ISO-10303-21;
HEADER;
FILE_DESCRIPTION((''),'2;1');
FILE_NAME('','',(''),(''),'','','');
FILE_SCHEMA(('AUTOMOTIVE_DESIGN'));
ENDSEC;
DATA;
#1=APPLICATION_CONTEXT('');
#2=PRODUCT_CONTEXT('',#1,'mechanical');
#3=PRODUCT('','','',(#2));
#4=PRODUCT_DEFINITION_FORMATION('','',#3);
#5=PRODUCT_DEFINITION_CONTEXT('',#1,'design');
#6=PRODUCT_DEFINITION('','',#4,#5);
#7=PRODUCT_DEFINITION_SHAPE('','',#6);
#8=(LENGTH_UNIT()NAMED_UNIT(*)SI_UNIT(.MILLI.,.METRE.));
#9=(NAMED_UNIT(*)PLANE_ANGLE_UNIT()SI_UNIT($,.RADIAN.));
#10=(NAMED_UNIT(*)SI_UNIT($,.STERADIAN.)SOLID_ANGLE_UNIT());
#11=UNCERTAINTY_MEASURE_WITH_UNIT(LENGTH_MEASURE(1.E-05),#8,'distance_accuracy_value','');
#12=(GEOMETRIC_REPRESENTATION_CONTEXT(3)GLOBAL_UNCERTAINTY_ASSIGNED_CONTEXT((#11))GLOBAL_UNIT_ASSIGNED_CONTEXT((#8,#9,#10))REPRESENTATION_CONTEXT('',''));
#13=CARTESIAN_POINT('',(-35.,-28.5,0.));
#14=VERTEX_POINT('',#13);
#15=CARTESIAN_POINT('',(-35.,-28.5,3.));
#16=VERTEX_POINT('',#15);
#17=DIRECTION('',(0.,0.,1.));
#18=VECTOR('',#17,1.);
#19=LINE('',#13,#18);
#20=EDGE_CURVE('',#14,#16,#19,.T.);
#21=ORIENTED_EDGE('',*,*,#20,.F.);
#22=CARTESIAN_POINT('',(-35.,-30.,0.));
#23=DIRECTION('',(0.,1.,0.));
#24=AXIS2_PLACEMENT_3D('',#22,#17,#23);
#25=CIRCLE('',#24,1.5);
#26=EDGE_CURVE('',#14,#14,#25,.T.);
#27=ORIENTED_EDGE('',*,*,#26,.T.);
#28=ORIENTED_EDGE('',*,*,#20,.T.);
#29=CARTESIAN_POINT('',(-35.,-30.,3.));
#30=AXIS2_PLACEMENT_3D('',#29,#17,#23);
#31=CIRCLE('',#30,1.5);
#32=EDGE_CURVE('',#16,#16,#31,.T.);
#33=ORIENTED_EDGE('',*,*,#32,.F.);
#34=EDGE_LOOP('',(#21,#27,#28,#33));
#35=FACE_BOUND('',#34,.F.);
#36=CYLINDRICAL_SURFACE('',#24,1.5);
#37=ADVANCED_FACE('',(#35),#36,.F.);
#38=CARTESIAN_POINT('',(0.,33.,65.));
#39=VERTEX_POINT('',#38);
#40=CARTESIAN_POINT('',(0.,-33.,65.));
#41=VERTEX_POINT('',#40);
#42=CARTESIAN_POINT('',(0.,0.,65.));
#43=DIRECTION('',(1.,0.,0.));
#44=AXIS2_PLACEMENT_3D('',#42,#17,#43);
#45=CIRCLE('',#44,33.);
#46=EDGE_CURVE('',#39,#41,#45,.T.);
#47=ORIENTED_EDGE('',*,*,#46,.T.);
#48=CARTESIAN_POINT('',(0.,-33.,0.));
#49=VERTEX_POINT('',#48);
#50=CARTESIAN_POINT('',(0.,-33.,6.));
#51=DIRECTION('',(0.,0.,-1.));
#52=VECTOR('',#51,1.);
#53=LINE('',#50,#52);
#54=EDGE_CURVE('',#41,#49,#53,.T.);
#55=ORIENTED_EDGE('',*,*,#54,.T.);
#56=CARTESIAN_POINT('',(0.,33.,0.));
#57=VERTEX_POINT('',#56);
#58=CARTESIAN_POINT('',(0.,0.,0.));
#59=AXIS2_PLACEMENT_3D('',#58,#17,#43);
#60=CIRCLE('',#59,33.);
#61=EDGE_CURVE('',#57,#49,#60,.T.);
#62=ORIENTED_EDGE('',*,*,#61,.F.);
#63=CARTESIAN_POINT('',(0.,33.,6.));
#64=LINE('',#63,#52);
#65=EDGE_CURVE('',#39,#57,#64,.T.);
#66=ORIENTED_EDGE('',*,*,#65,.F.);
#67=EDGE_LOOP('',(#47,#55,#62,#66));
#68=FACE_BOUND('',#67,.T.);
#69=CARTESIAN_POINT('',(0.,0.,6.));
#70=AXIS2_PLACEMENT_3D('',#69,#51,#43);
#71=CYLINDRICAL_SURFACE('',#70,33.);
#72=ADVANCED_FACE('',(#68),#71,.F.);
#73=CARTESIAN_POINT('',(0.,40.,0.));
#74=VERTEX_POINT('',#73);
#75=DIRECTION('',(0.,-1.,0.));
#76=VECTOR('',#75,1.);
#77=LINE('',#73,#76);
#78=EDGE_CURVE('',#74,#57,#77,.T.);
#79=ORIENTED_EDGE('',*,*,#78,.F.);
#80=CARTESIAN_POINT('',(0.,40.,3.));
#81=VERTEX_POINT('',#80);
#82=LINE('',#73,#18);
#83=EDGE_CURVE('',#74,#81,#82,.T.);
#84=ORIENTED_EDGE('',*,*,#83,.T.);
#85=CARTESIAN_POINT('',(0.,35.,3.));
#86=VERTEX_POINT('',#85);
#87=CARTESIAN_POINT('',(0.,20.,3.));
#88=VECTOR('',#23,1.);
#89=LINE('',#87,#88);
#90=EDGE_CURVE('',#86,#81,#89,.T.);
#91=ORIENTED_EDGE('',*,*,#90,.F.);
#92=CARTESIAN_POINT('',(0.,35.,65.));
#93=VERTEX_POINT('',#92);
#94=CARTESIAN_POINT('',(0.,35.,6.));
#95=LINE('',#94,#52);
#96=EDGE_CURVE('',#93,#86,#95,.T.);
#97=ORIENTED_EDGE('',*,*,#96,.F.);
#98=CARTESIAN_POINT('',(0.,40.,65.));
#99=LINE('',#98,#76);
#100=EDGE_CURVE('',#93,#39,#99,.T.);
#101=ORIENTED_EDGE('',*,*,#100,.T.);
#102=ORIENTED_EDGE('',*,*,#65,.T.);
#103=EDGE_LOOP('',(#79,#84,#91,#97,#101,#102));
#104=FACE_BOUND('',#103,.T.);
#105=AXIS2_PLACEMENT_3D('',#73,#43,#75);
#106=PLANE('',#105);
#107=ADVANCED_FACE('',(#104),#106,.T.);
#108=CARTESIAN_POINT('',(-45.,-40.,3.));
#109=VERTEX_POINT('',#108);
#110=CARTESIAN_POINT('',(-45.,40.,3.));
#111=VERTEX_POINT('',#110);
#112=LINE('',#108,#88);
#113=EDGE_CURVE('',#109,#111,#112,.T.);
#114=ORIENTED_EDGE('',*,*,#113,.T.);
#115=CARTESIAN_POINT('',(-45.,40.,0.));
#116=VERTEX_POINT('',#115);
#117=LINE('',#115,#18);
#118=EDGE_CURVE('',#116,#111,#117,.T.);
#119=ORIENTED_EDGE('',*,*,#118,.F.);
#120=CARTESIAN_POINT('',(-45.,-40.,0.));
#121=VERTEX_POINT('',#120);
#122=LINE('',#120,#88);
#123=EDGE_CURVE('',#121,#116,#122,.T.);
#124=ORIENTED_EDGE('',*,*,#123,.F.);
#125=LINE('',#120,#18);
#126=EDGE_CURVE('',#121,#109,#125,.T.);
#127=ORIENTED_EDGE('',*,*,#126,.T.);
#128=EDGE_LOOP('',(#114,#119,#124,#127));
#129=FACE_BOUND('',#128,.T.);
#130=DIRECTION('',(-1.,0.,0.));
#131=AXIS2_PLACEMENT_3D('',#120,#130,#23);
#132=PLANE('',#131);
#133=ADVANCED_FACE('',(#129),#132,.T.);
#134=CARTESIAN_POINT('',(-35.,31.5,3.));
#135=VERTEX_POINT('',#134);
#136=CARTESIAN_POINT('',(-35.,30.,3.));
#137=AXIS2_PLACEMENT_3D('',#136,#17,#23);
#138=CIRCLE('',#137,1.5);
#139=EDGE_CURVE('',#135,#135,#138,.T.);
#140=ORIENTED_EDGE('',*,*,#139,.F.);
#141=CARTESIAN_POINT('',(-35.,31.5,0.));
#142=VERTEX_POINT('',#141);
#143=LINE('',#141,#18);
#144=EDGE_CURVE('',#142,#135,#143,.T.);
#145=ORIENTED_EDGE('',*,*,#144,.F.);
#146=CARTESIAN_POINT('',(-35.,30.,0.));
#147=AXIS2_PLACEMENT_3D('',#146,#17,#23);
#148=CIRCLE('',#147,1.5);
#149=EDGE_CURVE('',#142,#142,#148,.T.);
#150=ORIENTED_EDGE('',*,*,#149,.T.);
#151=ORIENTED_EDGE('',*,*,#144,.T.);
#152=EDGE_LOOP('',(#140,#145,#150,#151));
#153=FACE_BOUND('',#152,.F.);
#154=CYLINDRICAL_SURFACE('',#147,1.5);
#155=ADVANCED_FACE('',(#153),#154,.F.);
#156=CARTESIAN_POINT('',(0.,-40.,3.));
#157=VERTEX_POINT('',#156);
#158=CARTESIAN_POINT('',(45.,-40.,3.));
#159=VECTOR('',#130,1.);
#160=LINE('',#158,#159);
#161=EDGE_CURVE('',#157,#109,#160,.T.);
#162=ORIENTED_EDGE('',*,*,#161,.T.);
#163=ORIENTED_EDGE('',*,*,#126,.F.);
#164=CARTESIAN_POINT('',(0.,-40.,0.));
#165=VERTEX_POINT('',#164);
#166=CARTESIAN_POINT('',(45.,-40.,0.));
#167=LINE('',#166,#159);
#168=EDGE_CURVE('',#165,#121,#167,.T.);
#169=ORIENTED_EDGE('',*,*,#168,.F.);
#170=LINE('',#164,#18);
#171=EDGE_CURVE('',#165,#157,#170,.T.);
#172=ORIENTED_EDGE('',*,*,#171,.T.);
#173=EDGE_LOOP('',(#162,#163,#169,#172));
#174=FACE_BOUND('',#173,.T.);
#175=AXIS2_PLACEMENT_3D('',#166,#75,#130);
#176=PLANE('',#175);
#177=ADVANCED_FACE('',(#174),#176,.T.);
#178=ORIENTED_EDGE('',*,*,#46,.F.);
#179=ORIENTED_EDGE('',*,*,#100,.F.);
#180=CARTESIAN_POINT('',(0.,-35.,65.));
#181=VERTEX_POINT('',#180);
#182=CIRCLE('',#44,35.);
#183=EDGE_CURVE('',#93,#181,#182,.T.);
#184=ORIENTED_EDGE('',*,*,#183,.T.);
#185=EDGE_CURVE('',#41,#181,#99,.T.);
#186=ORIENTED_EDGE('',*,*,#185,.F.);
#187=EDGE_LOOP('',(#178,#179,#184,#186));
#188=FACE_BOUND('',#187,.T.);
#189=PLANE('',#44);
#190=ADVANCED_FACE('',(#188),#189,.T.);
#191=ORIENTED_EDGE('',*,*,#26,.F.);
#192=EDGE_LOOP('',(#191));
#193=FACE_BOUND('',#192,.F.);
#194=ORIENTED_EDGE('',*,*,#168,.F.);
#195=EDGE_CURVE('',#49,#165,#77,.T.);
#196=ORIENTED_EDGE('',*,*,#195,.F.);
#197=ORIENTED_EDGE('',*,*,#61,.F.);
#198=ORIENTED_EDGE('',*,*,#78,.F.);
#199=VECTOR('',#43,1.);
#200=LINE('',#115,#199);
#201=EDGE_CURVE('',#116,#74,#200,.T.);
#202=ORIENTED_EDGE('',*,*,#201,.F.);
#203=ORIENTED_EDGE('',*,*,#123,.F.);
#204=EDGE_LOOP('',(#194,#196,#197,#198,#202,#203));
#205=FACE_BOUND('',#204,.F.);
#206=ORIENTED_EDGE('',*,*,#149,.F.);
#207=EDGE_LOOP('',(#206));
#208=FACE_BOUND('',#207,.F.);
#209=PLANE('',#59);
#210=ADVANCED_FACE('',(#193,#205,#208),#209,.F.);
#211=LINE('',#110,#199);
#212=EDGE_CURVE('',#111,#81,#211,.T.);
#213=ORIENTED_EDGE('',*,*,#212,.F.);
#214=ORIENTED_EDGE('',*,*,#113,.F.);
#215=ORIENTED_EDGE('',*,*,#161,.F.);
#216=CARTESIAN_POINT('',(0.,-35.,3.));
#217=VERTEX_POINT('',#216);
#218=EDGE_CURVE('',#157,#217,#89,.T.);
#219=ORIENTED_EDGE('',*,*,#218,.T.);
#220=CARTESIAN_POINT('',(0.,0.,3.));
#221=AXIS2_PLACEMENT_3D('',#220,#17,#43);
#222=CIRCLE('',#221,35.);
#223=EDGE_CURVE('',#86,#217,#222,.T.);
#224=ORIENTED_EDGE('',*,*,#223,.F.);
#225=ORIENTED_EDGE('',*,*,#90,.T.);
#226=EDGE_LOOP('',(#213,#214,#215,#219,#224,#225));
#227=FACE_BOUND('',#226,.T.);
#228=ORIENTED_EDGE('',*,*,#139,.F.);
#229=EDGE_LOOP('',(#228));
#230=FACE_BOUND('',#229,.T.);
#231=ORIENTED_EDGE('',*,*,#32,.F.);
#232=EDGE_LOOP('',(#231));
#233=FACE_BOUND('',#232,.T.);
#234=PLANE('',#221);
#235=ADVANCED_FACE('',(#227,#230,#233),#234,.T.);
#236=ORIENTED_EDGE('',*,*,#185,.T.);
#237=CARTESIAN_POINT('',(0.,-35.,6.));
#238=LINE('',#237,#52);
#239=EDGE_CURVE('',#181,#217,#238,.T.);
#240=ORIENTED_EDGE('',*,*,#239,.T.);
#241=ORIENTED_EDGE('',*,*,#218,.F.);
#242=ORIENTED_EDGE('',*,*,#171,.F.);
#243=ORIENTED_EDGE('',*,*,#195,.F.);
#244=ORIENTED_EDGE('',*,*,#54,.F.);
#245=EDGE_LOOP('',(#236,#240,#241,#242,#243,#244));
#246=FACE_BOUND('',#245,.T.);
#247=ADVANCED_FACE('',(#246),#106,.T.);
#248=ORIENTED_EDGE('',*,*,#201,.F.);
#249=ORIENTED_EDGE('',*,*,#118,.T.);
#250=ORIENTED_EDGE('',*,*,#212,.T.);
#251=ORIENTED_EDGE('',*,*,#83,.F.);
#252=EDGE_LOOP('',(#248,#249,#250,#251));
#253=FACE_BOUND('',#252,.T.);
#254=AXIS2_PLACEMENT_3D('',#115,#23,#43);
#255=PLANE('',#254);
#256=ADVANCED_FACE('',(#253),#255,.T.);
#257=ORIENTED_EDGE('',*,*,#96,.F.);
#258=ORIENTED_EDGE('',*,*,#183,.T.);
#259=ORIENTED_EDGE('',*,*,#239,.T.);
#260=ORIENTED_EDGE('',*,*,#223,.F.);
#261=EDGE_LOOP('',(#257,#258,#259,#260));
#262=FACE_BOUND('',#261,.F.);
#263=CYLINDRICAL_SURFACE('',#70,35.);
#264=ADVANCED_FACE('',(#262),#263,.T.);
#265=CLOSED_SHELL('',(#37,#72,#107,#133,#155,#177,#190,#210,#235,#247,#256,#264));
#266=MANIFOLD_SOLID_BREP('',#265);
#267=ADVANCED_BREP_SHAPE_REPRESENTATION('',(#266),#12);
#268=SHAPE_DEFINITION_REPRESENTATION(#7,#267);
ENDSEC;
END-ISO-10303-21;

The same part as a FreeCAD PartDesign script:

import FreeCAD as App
import Part
import Sketcher
from FreeCAD import Vector
Q = App.Units.Quantity

doc = App.newDocument("Part")
body = doc.addObject("PartDesign::Body", "Body")

# Sketch on XY plane
sketch1 = doc.addObject("Sketcher::SketchObject", "Sketch")
body.addObject(sketch1)
sketch1.AttachmentSupport = (doc.XY_Plane, [""])
sketch1.MapMode = "FlatFace"
sketch1.addGeometry([
    Part.LineSegment(Vector(45, 40, 0), Vector(-45, 40, 0)),  # 0
    Part.LineSegment(Vector(-45, 40, 0), Vector(-45, -40, 0)),  # 1
    Part.LineSegment(Vector(-45, -40, 0), Vector(45, -40, 0)),  # 2
    Part.LineSegment(Vector(45, -40, 0), Vector(45, 40, 0)),  # 3
    Part.Circle(Vector(0, 0, 0), Vector(0, 0, 1), 35),  # 4
], False)
sketch1.addConstraint([
    Sketcher.Constraint("Coincident", 0, 2, 1, 1),
    Sketcher.Constraint("Coincident", 1, 2, 2, 1),
    Sketcher.Constraint("Coincident", 2, 2, 3, 1),
    Sketcher.Constraint("Coincident", 3, 2, 0, 1),
    Sketcher.Constraint("Horizontal", 0),
    Sketcher.Constraint("Vertical", 1),
    Sketcher.Constraint("Horizontal", 2),
    Sketcher.Constraint("Vertical", 3),
    Sketcher.Constraint("Coincident", 4, 3, -1, 1),
    Sketcher.Constraint("Symmetric", 0, 2, 2, 2, -1, 1),
    Sketcher.Constraint("Diameter", 4, Q("70 mm")),
    Sketcher.Constraint("DistanceX", 0, 2, 0, 1, Q("90 mm")),
    Sketcher.Constraint("DistanceY", 1, 2, 1, 1, Q("80 mm")),
])
pad1 = doc.addObject("PartDesign::Pad", "Pad")
body.addObject(pad1)
pad1.Profile = sketch1
pad1.Length = 3

# Sketch on XY plane
sketch2 = doc.addObject("Sketcher::SketchObject", "Sketch001")
body.addObject(sketch2)
sketch2.AttachmentSupport = (doc.XY_Plane, [""])
sketch2.MapMode = "FlatFace"
sketch2.AttachmentOffset = App.Placement(Vector(0, 0, 3), App.Rotation())
sketch2.addGeometry([
    Part.Circle(Vector(0, 0, 0), Vector(0, 0, 1), 35),
    Part.Circle(Vector(0, 0, 0), Vector(0, 0, 1), 33),
], False)
sketch2.addConstraint([
    Sketcher.Constraint("Coincident", 0, 3, -1, 1),
    Sketcher.Constraint("Coincident", 1, 3, -1, 1),
    Sketcher.Constraint("Diameter", 1, Q("66 mm")),
    Sketcher.Constraint("Diameter", 0, Q("70 mm")),
])
pad2 = doc.addObject("PartDesign::Pad", "Pad001")
body.addObject(pad2)
pad2.Profile = sketch2
pad2.Type = "TwoLengths"
pad2.Length = 3
pad2.Length2 = 3

# Sketch on XY plane
sketch3 = doc.addObject("Sketcher::SketchObject", "Sketch002")
body.addObject(sketch3)
sketch3.AttachmentSupport = (doc.XY_Plane, [""])
sketch3.MapMode = "FlatFace"
sketch3.AttachmentOffset = App.Placement(Vector(0, 0, 6), App.Rotation())
sketch3.addGeometry([
    Part.Circle(Vector(0, 0, 0), Vector(0, 0, 1), 35),
    Part.Circle(Vector(0, 0, 0), Vector(0, 0, 1), 33),
], False)
sketch3.addConstraint([
    Sketcher.Constraint("Coincident", 0, 3, -1, 1),
    Sketcher.Constraint("Coincident", 1, 3, -1, 1),
    Sketcher.Constraint("Diameter", 0, Q("70 mm")),
    Sketcher.Constraint("Diameter", 1, Q("66 mm")),
])
pad3 = doc.addObject("PartDesign::Pad", "Pad002")
body.addObject(pad3)
pad3.Profile = sketch3
pad3.Length = 59

# Sketch on XY plane
sketch4 = doc.addObject("Sketcher::SketchObject", "Sketch003")
body.addObject(sketch4)
sketch4.AttachmentSupport = (doc.XY_Plane, [""])
sketch4.MapMode = "FlatFace"
sketch4.addGeometry([
    Part.Circle(Vector(35, 30, 0), Vector(0, 0, 1), 1.5),
    Part.Circle(Vector(-35, 30, 0), Vector(0, 0, 1), 1.5),
    Part.Circle(Vector(-35, -30, 0), Vector(0, 0, 1), 1.5),
    Part.Circle(Vector(35, -30, 0), Vector(0, 0, 1), 1.5),
], False)
sketch4.addConstraint([
    Sketcher.Constraint("Equal", 0, 1),
    Sketcher.Constraint("Equal", 1, 2),
    Sketcher.Constraint("Equal", 2, 3),
    Sketcher.Constraint("Symmetric", 0, 3, 2, 3, -1, 1),
    Sketcher.Constraint("Symmetric", 1, 3, 3, 3, -1, 1),
    Sketcher.Constraint("Symmetric", 0, 3, 1, 3, -2),
    Sketcher.Constraint("Diameter", 0, Q("3 mm")),
    Sketcher.Constraint("DistanceX", -1, 1, 0, 3, Q("35 mm")),
    Sketcher.Constraint("DistanceY", -1, 1, 0, 3, Q("30 mm")),
])
doc.recompute()
hole = doc.addObject("PartDesign::Hole", "Hole")
body.addObject(hole)
hole.Profile = sketch4
hole.ThreadType = "None"
hole.Diameter = 3
hole.DepthType = "Dimension"
hole.Depth = 8
hole.DrillPoint = "Angled"
hole.DrillPointAngle = 118
hole.Reversed = True

# Sketch on XY plane
sketch5 = doc.addObject("Sketcher::SketchObject", "Sketch004")
body.addObject(sketch5)
sketch5.AttachmentSupport = (doc.XY_Plane, [""])
sketch5.MapMode = "FlatFace"
sketch5.addGeometry([
    Part.LineSegment(Vector(45, 40, 0), Vector(45, -40, 0)),  # 0
    Part.LineSegment(Vector(45, -40, 0), Vector(0, -40, 0)),  # 1
    Part.LineSegment(Vector(0, -40, 0), Vector(0, 40, 0)),  # 2
    Part.LineSegment(Vector(0, 40, 0), Vector(45, 40, 0)),  # 3
    Part.Circle(Vector(35, -30, 0), Vector(0, 0, 1), 1.5),  # 4
    Part.Circle(Vector(35, 30, 0), Vector(0, 0, 1), 1.5),  # 5
], False)
sketch5.addConstraint([
    Sketcher.Constraint("Coincident", 0, 2, 1, 1),
    Sketcher.Constraint("Coincident", 1, 2, 2, 1),
    Sketcher.Constraint("Coincident", 2, 2, 3, 1),
    Sketcher.Constraint("Coincident", 3, 2, 0, 1),
    Sketcher.Constraint("Vertical", 0),
    Sketcher.Constraint("Horizontal", 1),
    Sketcher.Constraint("Vertical", 2),
    Sketcher.Constraint("Horizontal", 3),
    Sketcher.Constraint("Equal", 4, 5),
    Sketcher.Constraint("Symmetric", 1, 2, 2, 2, -1, 1),
    Sketcher.Constraint("Symmetric", 4, 3, 5, 3, -1),
    Sketcher.Constraint("Diameter", 4, Q("3 mm")),
    Sketcher.Constraint("DistanceX", 1, 2, 1, 1, Q("45 mm")),
    Sketcher.Constraint("DistanceY", 0, 2, 0, 1, Q("80 mm")),
    Sketcher.Constraint("DistanceX", -1, 1, 4, 3, Q("35 mm")),
    Sketcher.Constraint("DistanceY", 4, 3, -1, 1, Q("30 mm")),
])
pocket1 = doc.addObject("PartDesign::Pocket", "Pocket")
body.addObject(pocket1)
pocket1.Profile = sketch5
pocket1.Length = 65
pocket1.Reversed = True

doc.recompute()
